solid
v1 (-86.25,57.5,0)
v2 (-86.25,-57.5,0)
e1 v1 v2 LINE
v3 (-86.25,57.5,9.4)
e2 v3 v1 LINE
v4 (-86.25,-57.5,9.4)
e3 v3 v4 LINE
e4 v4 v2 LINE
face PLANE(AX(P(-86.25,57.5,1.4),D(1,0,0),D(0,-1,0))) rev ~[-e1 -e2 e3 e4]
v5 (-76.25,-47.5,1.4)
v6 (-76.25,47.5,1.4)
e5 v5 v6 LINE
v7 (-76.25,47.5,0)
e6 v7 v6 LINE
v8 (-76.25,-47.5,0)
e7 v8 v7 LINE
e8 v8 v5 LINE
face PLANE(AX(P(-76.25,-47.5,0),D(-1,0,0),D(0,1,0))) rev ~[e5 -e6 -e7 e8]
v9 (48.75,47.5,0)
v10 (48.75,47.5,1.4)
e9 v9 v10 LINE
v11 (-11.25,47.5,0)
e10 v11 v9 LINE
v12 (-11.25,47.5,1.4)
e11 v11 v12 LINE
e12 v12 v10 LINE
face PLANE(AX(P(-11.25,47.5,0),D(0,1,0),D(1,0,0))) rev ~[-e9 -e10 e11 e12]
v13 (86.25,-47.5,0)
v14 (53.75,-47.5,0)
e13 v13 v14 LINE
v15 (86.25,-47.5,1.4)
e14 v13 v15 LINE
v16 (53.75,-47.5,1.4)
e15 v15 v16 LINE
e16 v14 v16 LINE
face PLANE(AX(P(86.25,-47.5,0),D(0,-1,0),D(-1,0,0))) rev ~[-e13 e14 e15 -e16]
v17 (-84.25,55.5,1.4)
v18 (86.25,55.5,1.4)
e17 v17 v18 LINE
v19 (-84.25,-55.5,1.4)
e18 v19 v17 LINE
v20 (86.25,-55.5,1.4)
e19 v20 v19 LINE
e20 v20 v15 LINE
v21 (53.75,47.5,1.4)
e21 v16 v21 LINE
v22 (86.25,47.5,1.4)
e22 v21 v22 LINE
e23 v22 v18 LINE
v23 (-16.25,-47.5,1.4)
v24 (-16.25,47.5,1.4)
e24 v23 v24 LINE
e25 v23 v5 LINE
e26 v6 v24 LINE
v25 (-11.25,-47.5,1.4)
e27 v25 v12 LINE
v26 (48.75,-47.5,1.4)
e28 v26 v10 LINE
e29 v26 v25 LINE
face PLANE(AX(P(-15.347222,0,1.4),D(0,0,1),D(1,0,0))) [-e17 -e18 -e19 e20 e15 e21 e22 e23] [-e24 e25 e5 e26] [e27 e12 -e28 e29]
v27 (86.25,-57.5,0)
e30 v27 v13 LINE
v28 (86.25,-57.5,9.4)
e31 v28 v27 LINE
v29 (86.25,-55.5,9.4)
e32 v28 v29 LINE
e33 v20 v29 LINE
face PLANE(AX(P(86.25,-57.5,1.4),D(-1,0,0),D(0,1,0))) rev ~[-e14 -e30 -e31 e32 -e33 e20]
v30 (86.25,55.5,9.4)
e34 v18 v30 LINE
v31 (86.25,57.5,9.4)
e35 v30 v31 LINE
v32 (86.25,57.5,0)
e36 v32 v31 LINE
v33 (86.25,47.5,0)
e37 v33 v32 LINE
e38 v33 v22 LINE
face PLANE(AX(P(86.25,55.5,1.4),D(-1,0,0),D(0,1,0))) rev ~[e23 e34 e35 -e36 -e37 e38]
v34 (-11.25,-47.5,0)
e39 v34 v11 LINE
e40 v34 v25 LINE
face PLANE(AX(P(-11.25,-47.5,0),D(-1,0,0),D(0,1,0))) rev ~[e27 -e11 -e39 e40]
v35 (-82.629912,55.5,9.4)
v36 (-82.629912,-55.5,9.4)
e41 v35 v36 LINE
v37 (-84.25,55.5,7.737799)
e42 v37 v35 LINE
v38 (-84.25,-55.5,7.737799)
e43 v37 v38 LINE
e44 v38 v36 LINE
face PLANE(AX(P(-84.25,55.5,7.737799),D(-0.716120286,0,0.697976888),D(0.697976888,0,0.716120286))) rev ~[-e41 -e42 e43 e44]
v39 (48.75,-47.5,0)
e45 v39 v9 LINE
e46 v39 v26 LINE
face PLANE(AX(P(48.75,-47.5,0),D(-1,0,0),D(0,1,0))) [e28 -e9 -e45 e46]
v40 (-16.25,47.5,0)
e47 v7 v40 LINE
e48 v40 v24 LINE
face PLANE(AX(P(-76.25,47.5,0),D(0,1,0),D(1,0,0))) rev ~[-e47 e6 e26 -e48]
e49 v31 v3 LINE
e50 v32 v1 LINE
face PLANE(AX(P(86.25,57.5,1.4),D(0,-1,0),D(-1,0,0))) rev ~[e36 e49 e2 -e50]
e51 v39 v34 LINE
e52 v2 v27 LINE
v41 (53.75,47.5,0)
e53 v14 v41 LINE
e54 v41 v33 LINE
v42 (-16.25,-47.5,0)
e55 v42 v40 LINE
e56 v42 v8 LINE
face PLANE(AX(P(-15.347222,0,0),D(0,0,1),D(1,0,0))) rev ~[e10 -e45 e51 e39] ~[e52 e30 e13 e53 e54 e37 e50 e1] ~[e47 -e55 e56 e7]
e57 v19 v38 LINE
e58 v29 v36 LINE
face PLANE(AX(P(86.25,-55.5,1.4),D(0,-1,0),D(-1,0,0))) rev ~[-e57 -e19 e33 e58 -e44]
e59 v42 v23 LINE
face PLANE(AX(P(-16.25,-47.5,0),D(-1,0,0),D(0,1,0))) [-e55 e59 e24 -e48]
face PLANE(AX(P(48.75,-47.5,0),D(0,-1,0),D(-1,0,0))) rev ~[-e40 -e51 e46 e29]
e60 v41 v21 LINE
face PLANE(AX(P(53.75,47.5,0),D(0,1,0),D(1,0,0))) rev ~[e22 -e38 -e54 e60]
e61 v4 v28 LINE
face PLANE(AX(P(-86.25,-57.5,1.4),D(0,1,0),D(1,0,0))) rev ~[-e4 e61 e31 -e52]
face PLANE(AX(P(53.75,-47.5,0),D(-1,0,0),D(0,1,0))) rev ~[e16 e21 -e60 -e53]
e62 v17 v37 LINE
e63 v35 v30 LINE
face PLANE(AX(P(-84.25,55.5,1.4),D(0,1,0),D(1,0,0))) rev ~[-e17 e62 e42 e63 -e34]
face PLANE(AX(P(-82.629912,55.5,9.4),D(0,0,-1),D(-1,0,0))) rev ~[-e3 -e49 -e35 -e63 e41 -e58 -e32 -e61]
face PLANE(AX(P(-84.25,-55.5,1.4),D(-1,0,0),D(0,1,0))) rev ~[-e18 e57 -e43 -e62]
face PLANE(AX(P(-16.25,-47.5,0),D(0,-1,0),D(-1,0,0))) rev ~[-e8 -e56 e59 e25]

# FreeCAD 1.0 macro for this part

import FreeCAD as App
import Part
import Sketcher
from FreeCAD import Vector
Q = App.Units.Quantity

doc = App.newDocument("Part")
body = doc.addObject("PartDesign::Body", "Body")

# Sketch on XY plane
sketch1 = doc.addObject("Sketcher::SketchObject", "Sketch")
body.addObject(sketch1)
sketch1.AttachmentSupport = (doc.XY_Plane, [""])
sketch1.MapMode = "FlatFace"
sketch1.addGeometry(Part.LineSegment(Vector(86.25, 47.5, 0), Vector(86.25, 57.5, 0)), False)
sketch1.addGeometry(Part.LineSegment(Vector(86.25, 57.5, 0), Vector(-86.25, 57.5, 0)), False)
sketch1.addGeometry(Part.LineSegment(Vector(-86.25, 57.5, 0), Vector(-86.25, -57.5, 0)), False)
sketch1.addGeometry(Part.LineSegment(Vector(-86.25, -57.5, 0), Vector(86.25, -57.5, 0)), False)
sketch1.addGeometry(Part.LineSegment(Vector(86.25, -57.5, 0), Vector(86.25, -47.5, 0)), False)
sketch1.addGeometry(Part.LineSegment(Vector(86.25, -47.5, 0), Vector(53.75, -47.5, 0)), False)
sketch1.addGeometry(Part.LineSegment(Vector(53.75, -47.5, 0), Vector(53.75, 47.5, 0)), False)
sketch1.addGeometry(Part.LineSegment(Vector(53.75, 47.5, 0), Vector(86.25, 47.5, 0)), False)
sketch1.addGeometry(Part.LineSegment(Vector(48.75, -47.5, 0), Vector(-11.25, -47.5, 0)), False)
sketch1.addGeometry(Part.LineSegment(Vector(-11.25, -47.5, 0), Vector(-11.25, 47.5, 0)), False)
sketch1.addGeometry(Part.LineSegment(Vector(-11.25, 47.5, 0), Vector(48.75, 47.5, 0)), False)
sketch1.addGeometry(Part.LineSegment(Vector(48.75, 47.5, 0), Vector(48.75, -47.5, 0)), False)
sketch1.addGeometry(Part.LineSegment(Vector(-16.25, -47.5, 0), Vector(-76.25, -47.5, 0)), False)
sketch1.addGeometry(Part.LineSegment(Vector(-76.25, -47.5, 0), Vector(-76.25, 47.5, 0)), False)
sketch1.addGeometry(Part.LineSegment(Vector(-76.25, 47.5, 0), Vector(-16.25, 47.5, 0)), False)
sketch1.addGeometry(Part.LineSegment(Vector(-16.25, 47.5, 0), Vector(-16.25, -47.5, 0)), False)
sketch1.addConstraint(Sketcher.Constraint("Coincident", 0, 2, 1, 1))
sketch1.addConstraint(Sketcher.Constraint("Coincident", 1, 2, 2, 1))
sketch1.addConstraint(Sketcher.Constraint("Coincident", 2, 2, 3, 1))
sketch1.addConstraint(Sketcher.Constraint("Coincident", 3, 2, 4, 1))
sketch1.addConstraint(Sketcher.Constraint("Coincident", 4, 2, 5, 1))
sketch1.addConstraint(Sketcher.Constraint("Coincident", 5, 2, 6, 1))
sketch1.addConstraint(Sketcher.Constraint("Coincident", 6, 2, 7, 1))
sketch1.addConstraint(Sketcher.Constraint("Coincident", 7, 2, 0, 1))
sketch1.addConstraint(Sketcher.Constraint("Coincident", 8, 2, 9, 1))
sketch1.addConstraint(Sketcher.Constraint("Coincident", 9, 2, 10, 1))
sketch1.addConstraint(Sketcher.Constraint("Coincident", 10, 2, 11, 1))
sketch1.addConstraint(Sketcher.Constraint("Coincident", 11, 2, 8, 1))
sketch1.addConstraint(Sketcher.Constraint("Coincident", 12, 2, 13, 1))
sketch1.addConstraint(Sketcher.Constraint("Coincident", 13, 2, 14, 1))
sketch1.addConstraint(Sketcher.Constraint("Coincident", 14, 2, 15, 1))
sketch1.addConstraint(Sketcher.Constraint("Coincident", 15, 2, 12, 1))
sketch1.addConstraint(Sketcher.Constraint("Vertical", 0))
sketch1.addConstraint(Sketcher.Constraint("Horizontal", 1))
sketch1.addConstraint(Sketcher.Constraint("Vertical", 2))
sketch1.addConstraint(Sketcher.Constraint("Horizontal", 3))
sketch1.addConstraint(Sketcher.Constraint("Vertical", 4))
sketch1.addConstraint(Sketcher.Constraint("Horizontal", 5))
sketch1.addConstraint(Sketcher.Constraint("Vertical", 6))
sketch1.addConstraint(Sketcher.Constraint("Horizontal", 7))
sketch1.addConstraint(Sketcher.Constraint("Horizontal", 8))
sketch1.addConstraint(Sketcher.Constraint("Vertical", 9))
sketch1.addConstraint(Sketcher.Constraint("Horizontal", 10))
sketch1.addConstraint(Sketcher.Constraint("Vertical", 11))
sketch1.addConstraint(Sketcher.Constraint("Horizontal", 12))
sketch1.addConstraint(Sketcher.Constraint("Vertical", 13))
sketch1.addConstraint(Sketcher.Constraint("Horizontal", 14))
sketch1.addConstraint(Sketcher.Constraint("Vertical", 15))
sketch1.addConstraint(Sketcher.Constraint("Symmetric", 0, 2, 2, 2, -1, 1))
sketch1.addConstraint(Sketcher.Constraint("Symmetric", 4, 2, 7, 2, -1))
sketch1.addConstraint(Sketcher.Constraint("Horizontal", 5, 2, 8, 2))
sketch1.addConstraint(Sketcher.Constraint("Horizontal", 7, 2, 9, 2))
sketch1.addConstraint(Sketcher.Constraint("Horizontal", 11, 2, 12, 2))
sketch1.addConstraint(Sketcher.Constraint("Horizontal", 10, 2, 13, 2))
sketch1.addConstraint(Sketcher.Constraint("Equal", 10, 12))
sketch1.addConstraint(Sketcher.Constraint("DistanceX", 8, 2, 8, 1, Q("60 mm")))
sketch1.addConstraint(Sketcher.Constraint("DistanceY", 0, 1, 0, 2, Q("10 mm")))
sketch1.addConstraint(Sketcher.Constraint("DistanceY", 2, 2, 2, 1, Q("115 mm")))
sketch1.addConstraint(Sketcher.Constraint("DistanceX", 1, 2, 1, 1, Q("172.5 mm")))
sketch1.addConstraint(Sketcher.Constraint("DistanceX", 5, 2, 5, 1, Q("32.5 mm")))
sketch1.addConstraint(Sketcher.Constraint("DistanceX", 8, 2, 5, 2, Q("65 mm")))
sketch1.addConstraint(Sketcher.Constraint("DistanceX", 2, 2, 12, 2, Q("10 mm")))
pad1 = doc.addObject("PartDesign::Pad", "Pad")
body.addObject(pad1)
pad1.Profile = sketch1
pad1.Length = 1.4

# Sketch on XY plane
sketch2 = doc.addObject("Sketcher::SketchObject", "Sketch001")
body.addObject(sketch2)
sketch2.AttachmentSupport = (doc.XY_Plane, [""])
sketch2.MapMode = "FlatFace"
sketch2.AttachmentOffset = App.Placement(Vector(0, 0, 1.4), App.Rotation())
sketch2.addGeometry(Part.LineSegment(Vector(86.25, -57.5, 0), Vector(86.25, -55.5, 0)), False)
sketch2.addGeometry(Part.LineSegment(Vector(86.25, -55.5, 0), Vector(-84.25, -55.5, 0)), False)
sketch2.addGeometry(Part.LineSegment(Vector(-84.25, -55.5, 0), Vector(-84.25, 55.5, 0)), False)
sketch2.addGeometry(Part.LineSegment(Vector(-84.25, 55.5, 0), Vector(86.25, 55.5, 0)), False)
sketch2.addGeometry(Part.LineSegment(Vector(86.25, 55.5, 0), Vector(86.25, 57.5, 0)), False)
sketch2.addGeometry(Part.LineSegment(Vector(86.25, 57.5, 0), Vector(-86.25, 57.5, 0)), False)
sketch2.addGeometry(Part.LineSegment(Vector(-86.25, 57.5, 0), Vector(-86.25, -57.5, 0)), False)
sketch2.addGeometry(Part.LineSegment(Vector(-86.25, -57.5, 0), Vector(86.25, -57.5, 0)), False)
sketch2.addConstraint(Sketcher.Constraint("Coincident", 0, 2, 1, 1))
sketch2.addConstraint(Sketcher.Constraint("Coincident", 1, 2, 2, 1))
sketch2.addConstraint(Sketcher.Constraint("Coincident", 2, 2, 3, 1))
sketch2.addConstraint(Sketcher.Constraint("Coincident", 3, 2, 4, 1))
sketch2.addConstraint(Sketcher.Constraint("Coincident", 4, 2, 5, 1))
sketch2.addConstraint(Sketcher.Constraint("Coincident", 5, 2, 6, 1))
sketch2.addConstraint(Sketcher.Constraint("Coincident", 6, 2, 7, 1))
sketch2.addConstraint(Sketcher.Constraint("Coincident", 7, 2, 0, 1))
sketch2.addConstraint(Sketcher.Constraint("Vertical", 0))
sketch2.addConstraint(Sketcher.Constraint("Horizontal", 1))
sketch2.addConstraint(Sketcher.Constraint("Vertical", 2))
sketch2.addConstraint(Sketcher.Constraint("Horizontal", 3))
sketch2.addConstraint(Sketcher.Constraint("Vertical", 4))
sketch2.addConstraint(Sketcher.Constraint("Horizontal", 5))
sketch2.addConstraint(Sketcher.Constraint("Vertical", 6))
sketch2.addConstraint(Sketcher.Constraint("Horizontal", 7))
sketch2.addConstraint(Sketcher.Constraint("Symmetric", 4, 2, 6, 2, -1, 1))
sketch2.addConstraint(Sketcher.Constraint("Symmetric", 0, 2, 3, 2, -1))
sketch2.addConstraint(Sketcher.Constraint("DistanceY", 0, 1, 0, 2, Q("2 mm")))
sketch2.addConstraint(Sketcher.Constraint("DistanceY", 2, 1, 2, 2, Q("111 mm")))
sketch2.addConstraint(Sketcher.Constraint("DistanceX", 1, 2, 1, 1, Q("170.5 mm")))
sketch2.addConstraint(Sketcher.Constraint("DistanceX", 5, 2, 5, 1, Q("172.5 mm")))
pad2 = doc.addObject("PartDesign::Pad", "Pad001")
body.addObject(pad2)
pad2.Profile = sketch2
pad2.Length = 8

# Sketch on XZ plane
sketch3 = doc.addObject("Sketcher::SketchObject", "Sketch002")
body.addObject(sketch3)
sketch3.AttachmentSupport = (doc.XZ_Plane, [""])
sketch3.MapMode = "FlatFace"
sketch3.AttachmentOffset = App.Placement(Vector(0, 0, -55.5), App.Rotation())
sketch3.addGeometry(Part.LineSegment(Vector(-84.25, 9.4, 0), Vector(-84.25, 7.737799, 0)), False)
sketch3.addGeometry(Part.LineSegment(Vector(-84.25, 7.737799, 0), Vector(-82.629912, 9.4, 0)), False)
sketch3.addGeometry(Part.LineSegment(Vector(-82.629912, 9.4, 0), Vector(-84.25, 9.4, 0)), False)
sketch3.addConstraint(Sketcher.Constraint("Coincident", 0, 2, 1, 1))
sketch3.addConstraint(Sketcher.Constraint("Coincident", 1, 2, 2, 1))
sketch3.addConstraint(Sketcher.Constraint("Coincident", 2, 2, 0, 1))
sketch3.addConstraint(Sketcher.Constraint("Vertical", 0))
sketch3.addConstraint(Sketcher.Constraint("Horizontal", 2))
sketch3.addConstraint(Sketcher.Constraint("DistanceY", -1, 1, 1, 2, Q("9.4 mm")))
sketch3.addConstraint(Sketcher.Constraint("DistanceX", 0, 2, -1, 1, Q("84.25 mm")))
sketch3.addConstraint(Sketcher.Constraint("DistanceY", 0, 2, 0, 1, Q("1.662201 mm")))
sketch3.addConstraint(Sketcher.Constraint("Distance", 1, Q("2.32112 mm")))
pad3 = doc.addObject("PartDesign::Pad", "Pad002")
body.addObject(pad3)
pad3.Profile = sketch3
pad3.Type = "UpToLast"

doc.recompute()
